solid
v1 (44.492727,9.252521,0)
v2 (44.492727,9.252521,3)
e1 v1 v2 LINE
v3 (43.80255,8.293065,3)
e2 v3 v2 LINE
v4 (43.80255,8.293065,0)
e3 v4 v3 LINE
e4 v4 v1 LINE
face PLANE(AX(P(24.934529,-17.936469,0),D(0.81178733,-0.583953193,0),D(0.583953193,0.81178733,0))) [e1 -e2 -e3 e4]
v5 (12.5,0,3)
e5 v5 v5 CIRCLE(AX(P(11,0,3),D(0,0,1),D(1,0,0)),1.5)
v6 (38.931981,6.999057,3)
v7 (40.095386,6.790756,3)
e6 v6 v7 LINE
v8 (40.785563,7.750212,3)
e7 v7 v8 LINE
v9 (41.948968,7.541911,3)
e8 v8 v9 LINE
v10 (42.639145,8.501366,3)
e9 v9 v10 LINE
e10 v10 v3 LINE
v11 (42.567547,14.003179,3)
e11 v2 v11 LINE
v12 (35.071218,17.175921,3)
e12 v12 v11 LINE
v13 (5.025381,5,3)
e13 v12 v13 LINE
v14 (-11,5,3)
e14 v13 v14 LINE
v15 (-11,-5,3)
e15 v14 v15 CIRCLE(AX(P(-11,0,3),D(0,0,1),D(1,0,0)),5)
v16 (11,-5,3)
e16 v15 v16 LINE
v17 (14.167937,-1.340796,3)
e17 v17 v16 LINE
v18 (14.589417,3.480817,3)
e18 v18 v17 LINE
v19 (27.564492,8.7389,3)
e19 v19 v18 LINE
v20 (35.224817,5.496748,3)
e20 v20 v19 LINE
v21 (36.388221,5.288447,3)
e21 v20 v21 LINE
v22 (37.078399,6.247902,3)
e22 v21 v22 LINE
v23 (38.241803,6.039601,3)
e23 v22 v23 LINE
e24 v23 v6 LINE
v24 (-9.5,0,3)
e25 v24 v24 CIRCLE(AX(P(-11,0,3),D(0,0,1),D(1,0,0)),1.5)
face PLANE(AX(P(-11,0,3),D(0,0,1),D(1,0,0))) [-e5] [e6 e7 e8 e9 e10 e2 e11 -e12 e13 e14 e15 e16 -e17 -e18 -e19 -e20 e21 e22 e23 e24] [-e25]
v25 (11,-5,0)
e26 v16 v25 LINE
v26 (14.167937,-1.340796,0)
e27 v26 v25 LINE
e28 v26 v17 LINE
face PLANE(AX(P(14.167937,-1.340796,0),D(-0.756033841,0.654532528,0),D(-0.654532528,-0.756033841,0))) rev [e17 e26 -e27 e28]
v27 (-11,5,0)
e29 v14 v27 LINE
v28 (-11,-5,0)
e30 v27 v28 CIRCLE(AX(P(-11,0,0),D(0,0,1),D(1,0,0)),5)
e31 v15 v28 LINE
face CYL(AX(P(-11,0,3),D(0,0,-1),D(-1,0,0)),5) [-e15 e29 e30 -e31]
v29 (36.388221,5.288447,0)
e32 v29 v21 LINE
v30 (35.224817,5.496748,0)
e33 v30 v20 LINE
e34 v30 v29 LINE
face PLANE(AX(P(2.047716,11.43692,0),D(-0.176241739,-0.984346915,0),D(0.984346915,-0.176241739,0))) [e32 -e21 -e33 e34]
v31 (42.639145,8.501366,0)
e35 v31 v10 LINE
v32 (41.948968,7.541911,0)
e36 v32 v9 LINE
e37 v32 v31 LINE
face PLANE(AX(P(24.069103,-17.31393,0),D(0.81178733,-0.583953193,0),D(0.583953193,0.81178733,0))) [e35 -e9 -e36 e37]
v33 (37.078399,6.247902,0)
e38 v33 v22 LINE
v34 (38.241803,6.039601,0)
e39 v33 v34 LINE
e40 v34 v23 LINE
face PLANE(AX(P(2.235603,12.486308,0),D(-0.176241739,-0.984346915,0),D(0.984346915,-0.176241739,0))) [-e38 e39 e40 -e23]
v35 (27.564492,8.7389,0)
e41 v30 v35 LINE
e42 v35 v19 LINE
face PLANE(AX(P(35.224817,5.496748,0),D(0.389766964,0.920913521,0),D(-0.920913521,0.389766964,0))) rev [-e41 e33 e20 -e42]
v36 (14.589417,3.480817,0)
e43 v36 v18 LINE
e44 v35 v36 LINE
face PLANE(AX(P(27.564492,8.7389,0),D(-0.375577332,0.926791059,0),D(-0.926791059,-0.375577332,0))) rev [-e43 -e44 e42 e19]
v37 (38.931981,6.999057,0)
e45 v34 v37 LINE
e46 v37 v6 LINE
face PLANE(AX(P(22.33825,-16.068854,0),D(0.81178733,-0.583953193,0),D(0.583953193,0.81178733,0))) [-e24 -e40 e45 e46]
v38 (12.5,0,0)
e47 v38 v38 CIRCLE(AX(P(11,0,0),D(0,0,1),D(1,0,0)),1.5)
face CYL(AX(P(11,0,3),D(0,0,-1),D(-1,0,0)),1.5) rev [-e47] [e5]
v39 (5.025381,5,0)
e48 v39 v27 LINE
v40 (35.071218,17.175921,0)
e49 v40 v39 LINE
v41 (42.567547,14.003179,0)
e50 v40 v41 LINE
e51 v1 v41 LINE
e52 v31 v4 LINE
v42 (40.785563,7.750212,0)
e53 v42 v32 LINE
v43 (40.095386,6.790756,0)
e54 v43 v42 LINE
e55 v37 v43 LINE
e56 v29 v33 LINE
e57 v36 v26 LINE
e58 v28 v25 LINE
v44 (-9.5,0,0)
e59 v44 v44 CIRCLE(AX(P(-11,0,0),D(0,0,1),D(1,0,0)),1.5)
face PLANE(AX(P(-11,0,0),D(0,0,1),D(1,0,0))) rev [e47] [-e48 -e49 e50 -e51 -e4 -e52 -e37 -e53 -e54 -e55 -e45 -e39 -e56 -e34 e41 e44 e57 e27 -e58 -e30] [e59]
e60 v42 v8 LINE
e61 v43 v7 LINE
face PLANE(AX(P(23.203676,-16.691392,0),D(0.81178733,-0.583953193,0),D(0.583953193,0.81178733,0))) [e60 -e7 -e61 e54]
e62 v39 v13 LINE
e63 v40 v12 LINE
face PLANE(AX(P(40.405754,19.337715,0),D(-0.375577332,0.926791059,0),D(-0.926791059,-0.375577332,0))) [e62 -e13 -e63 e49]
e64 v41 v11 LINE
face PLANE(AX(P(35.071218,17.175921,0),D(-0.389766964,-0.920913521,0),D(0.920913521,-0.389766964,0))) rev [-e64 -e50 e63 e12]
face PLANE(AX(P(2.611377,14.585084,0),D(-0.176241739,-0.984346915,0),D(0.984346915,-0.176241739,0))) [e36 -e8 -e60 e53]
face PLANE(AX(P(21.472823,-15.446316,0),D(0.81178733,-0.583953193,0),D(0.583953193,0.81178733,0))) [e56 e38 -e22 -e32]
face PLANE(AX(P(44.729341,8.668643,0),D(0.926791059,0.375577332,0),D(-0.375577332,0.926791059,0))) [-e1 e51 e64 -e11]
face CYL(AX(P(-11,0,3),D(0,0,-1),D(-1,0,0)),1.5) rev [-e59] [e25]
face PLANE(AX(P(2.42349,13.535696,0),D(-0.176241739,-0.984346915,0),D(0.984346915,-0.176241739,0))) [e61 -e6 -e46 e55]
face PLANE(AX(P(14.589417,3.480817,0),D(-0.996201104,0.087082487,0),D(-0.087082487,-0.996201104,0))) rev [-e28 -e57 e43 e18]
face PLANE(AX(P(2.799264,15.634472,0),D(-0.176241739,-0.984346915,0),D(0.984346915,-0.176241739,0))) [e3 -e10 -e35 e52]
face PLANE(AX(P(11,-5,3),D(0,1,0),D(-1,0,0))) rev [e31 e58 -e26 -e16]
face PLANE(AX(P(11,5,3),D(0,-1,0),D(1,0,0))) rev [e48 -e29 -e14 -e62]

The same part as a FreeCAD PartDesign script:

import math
import FreeCAD as App
import Part
import Sketcher

V = App.Vector
Q = App.Units.Quantity

doc = App.newDocument("Part")
body = doc.addObject("PartDesign::Body", "Body")

# Sketch on XY plane
sketch1 = body.newObject("Sketcher::SketchObject", "Sketch")
sketch1.AttachmentSupport = (doc.getObject("XY_Plane"), [""])
sketch1.MapMode = "FlatFace"
sketch1.addGeometry([
    Part.LineSegment(V(11, 5, 0), V(-11, 5, 0)),  # 0
    Part.ArcOfCircle(Part.Circle(V(-11, 0, 0), V(0, 0, 1), 5), math.radians(90), math.radians(270)),  # 1
    Part.LineSegment(V(-11, -5, 0), V(11, -5, 0)),  # 2
    Part.ArcOfCircle(Part.Circle(V(11, 0, 0), V(0, 0, 1), 5), math.radians(-90), math.radians(90)),  # 3
    Part.Circle(V(-11, 0, 0), V(0, 0, 1), 1.5),  # 4
    Part.Circle(V(11, 0, 0), V(0, 0, 1), 1.5),  # 5
], False)
sketch1.addConstraint([
    Sketcher.Constraint("Tangent", 0, 2, 1, 1),
    Sketcher.Constraint("Tangent", 1, 2, 2, 1),
    Sketcher.Constraint("Tangent", 2, 2, 3, 1),
    Sketcher.Constraint("Tangent", 3, 2, 0, 1),
    Sketcher.Constraint("Horizontal", 0),
    Sketcher.Constraint("Horizontal", 2),
    Sketcher.Constraint("Coincident", 4, 3, 1, 3),
    Sketcher.Constraint("Coincident", 5, 3, 3, 3),
    Sketcher.Constraint("Equal", 4, 5),
    Sketcher.Constraint("Symmetric", 1, 3, 3, 3, -1, 1),
    Sketcher.Constraint("Diameter", 4, Q("3 mm")),
    Sketcher.Constraint("Radius", 1, Q("5 mm")),
    Sketcher.Constraint("DistanceX", 0, 2, 0, 1, Q("22 mm")),
])
pad1 = body.newObject("PartDesign::Pad", "Pad")
pad1.Profile = sketch1
pad1.Length = 3

# Sketch on XY plane
sketch2 = body.newObject("Sketcher::SketchObject", "Sketch001")
sketch2.AttachmentSupport = (doc.getObject("XY_Plane"), [""])
sketch2.MapMode = "FlatFace"
sketch2.AttachmentOffset = App.Placement(V(0, 0, 3), App.Rotation())
sketch2.addGeometry([
    Part.LineSegment(V(35.5, 4.9, 0), V(44.7, 8.7, 0)),  # 0
    Part.LineSegment(V(44.7, 8.7, 0), V(40.4, 19.3, 0)),  # 1
    Part.LineSegment(V(40.4, 19.3, 0), V(5, 5, 0)),  # 2
    Part.LineSegment(V(5, 5, 0), V(11, 5, 0)),  # 3
    Part.ArcOfCircle(Part.Circle(V(11, 0, 0), V(0, 0, 1), 5), math.radians(44), math.radians(90)),  # 4
    Part.LineSegment(V(14.6, 3.5, 0), V(27.6, 8.7, 0)),  # 5
    Part.LineSegment(V(27.6, 8.7, 0), V(35.2, 5.5, 0)),  # 6
    Part.LineSegment(V(35.2, 5.5, 0), V(35.5, 4.9, 0)),  # 7
], False)
sketch2.addConstraint([
    Sketcher.Constraint("Coincident", 0, 2, 1, 1),
    Sketcher.Constraint("Coincident", 1, 2, 2, 1),
    Sketcher.Constraint("Coincident", 2, 2, 3, 1),
    Sketcher.Constraint("Tangent", 3, 2, 4, 2),
    Sketcher.Constraint("Coincident", 4, 1, 5, 1),
    Sketcher.Constraint("Coincident", 5, 2, 6, 1),
    Sketcher.Constraint("Coincident", 6, 2, 7, 1),
    Sketcher.Constraint("Coincident", 7, 2, 0, 1),
    Sketcher.Constraint("Horizontal", 3),
    Sketcher.Constraint("PointOnObject", 4, 3, -1),
    Sketcher.Constraint("Perpendicular", 0, 1),
    Sketcher.Constraint("Perpendicular", 1, 2),
    Sketcher.Constraint("Parallel", 2, 5),
    Sketcher.Constraint("Perpendicular", 5, 7),
    Sketcher.Constraint("Radius", 4, Q("5 mm")),
    Sketcher.Constraint("Distance", 0, Q("10 mm")),
    Sketcher.Constraint("Distance", 5, Q("14 mm")),
    Sketcher.Constraint("DistanceX", -1, 1, 4, 3, Q("11 mm")),
    Sketcher.Constraint("Angle", 0, Q("22.06 deg")),
    Sketcher.Constraint("Angle", 6, Q("-22.94 deg")),
    Sketcher.Constraint("Distance", 7, Q("0.63 mm")),
    Sketcher.Constraint("DistanceX", 3, 1, 3, 2, Q("5.974619 mm")),
    Sketcher.Constraint("DistanceY", -1, 1, 5, 2, Q("8.7389 mm")),
    Sketcher.Constraint("DistanceX", 4, 1, 6, 2, Q("20.6354 mm")),
])
pad2 = body.newObject("PartDesign::Pad", "Pad001")
pad2.Profile = sketch2
pad2.Length = 3
pad2.Reversed = True

# Sketch on XY plane
sketch3 = body.newObject("Sketcher::SketchObject", "Sketch002")
sketch3.AttachmentSupport = (doc.getObject("XY_Plane"), [""])
sketch3.MapMode = "FlatFace"
sketch3.AttachmentOffset = App.Placement(V(0, 0, 3), App.Rotation())
sketch3.addGeometry([
    Part.LineSegment(V(43, 14, 0), V(40, 19, 0)),
    Part.LineSegment(V(40, 19, 0), V(35, 17, 0)),
    Part.LineSegment(V(35, 17, 0), V(43, 14, 0)),
], False)
sketch3.addConstraint([
    Sketcher.Constraint("Coincident", 0, 2, 1, 1),
    Sketcher.Constraint("Coincident", 1, 2, 2, 1),
    Sketcher.Constraint("Coincident", 2, 2, 0, 1),
    Sketcher.Constraint("Perpendicular", 0, 1),
    Sketcher.Constraint("Equal", 0, 1),
    Sketcher.Constraint("Angle", 0, Q("112.06 deg")),
    Sketcher.Constraint("Distance", 2, Q("8.140102 mm")),
    Sketcher.Constraint("DistanceY", -1, 1, 1, 2, Q("17.175921 mm")),
    Sketcher.Constraint("DistanceX", -1, 1, 0, 2, Q("40.405754 mm")),
])
pocket1 = body.newObject("PartDesign::Pocket", "Pocket")
pocket1.Profile = sketch3
pocket1.Length = 3

# Sketch on XY plane
sketch4 = body.newObject("Sketcher::SketchObject", "Sketch003")
sketch4.AttachmentSupport = (doc.getObject("XY_Plane"), [""])
sketch4.MapMode = "FlatFace"
sketch4.AttachmentOffset = App.Placement(V(0, 0, 3), App.Rotation())
sketch4.addGeometry([
    Part.LineSegment(V(40.8, 7.8, 0), V(40.1, 6.8, 0)),  # 0
    Part.LineSegment(V(40.1, 6.8, 0), V(41.9, 7.5, 0)),  # 1
    Part.LineSegment(V(41.9, 7.5, 0), V(40.8, 7.8, 0)),  # 2
    Part.LineSegment(V(38.9, 7, 0), V(38.2, 6, 0)),  # 3
    Part.LineSegment(V(38.2, 6, 0), V(40.1, 6.8, 0)),  # 4
    Part.LineSegment(V(40.1, 6.8, 0), V(38.9, 7, 0)),  # 5
    Part.LineSegment(V(37.1, 6.2, 0), V(36.4, 5.3, 0)),  # 6
    Part.LineSegment(V(36.4, 5.3, 0), V(38.2, 6, 0)),  # 7
    Part.LineSegment(V(38.2, 6, 0), V(37.1, 6.2, 0)),  # 8
    Part.LineSegment(V(36.4, 5.3, 0), V(35.2, 5.5, 0)),  # 9
    Part.LineSegment(V(35.2, 5.5, 0), V(35.5, 4.9, 0)),  # 10
    Part.LineSegment(V(35.5, 4.9, 0), V(36.4, 5.3, 0)),  # 11
    Part.LineSegment(V(42.6, 8.5, 0), V(41.9, 7.5, 0)),  # 12
    Part.LineSegment(V(41.9, 7.5, 0), V(43.8, 8.3, 0)),  # 13
    Part.LineSegment(V(43.8, 8.3, 0), V(42.6, 8.5, 0)),  # 14
    Part.LineSegment(V(44.5, 9.3, 0), V(43.8, 8.3, 0)),  # 15
    Part.LineSegment(V(43.8, 8.3, 0), V(44.7, 8.7, 0)),  # 16
    Part.LineSegment(V(44.7, 8.7, 0), V(44.5, 9.3, 0)),  # 17
    Part.ArcOfCircle(Part.Circle(V(11, 0, 0), V(0, 0, 1), 5), math.radians(-90), math.radians(44)),  # 18
    Part.LineSegment(V(14.6, 3.5, 0), V(14.2, -1.3, 0)),  # 19
    Part.LineSegment(V(14.2, -1.3, 0), V(11, -5, 0)),  # 20
], False)
sketch4.addConstraint([
    Sketcher.Constraint("Coincident", 0, 2, 1, 1),
    Sketcher.Constraint("Coincident", 1, 2, 2, 1),
    Sketcher.Constraint("Coincident", 2, 2, 0, 1),
    Sketcher.Constraint("Coincident", 3, 2, 4, 1),
    Sketcher.Constraint("Coincident", 4, 2, 5, 1),
    Sketcher.Constraint("Coincident", 5, 2, 3, 1),
    Sketcher.Constraint("Coincident", 6, 2, 7, 1),
    Sketcher.Constraint("Coincident", 7, 2, 8, 1),
    Sketcher.Constraint("Coincident", 8, 2, 6, 1),
    Sketcher.Constraint("Coincident", 9, 2, 10, 1),
    Sketcher.Constraint("Coincident", 10, 2, 11, 1),
    Sketcher.Constraint("Coincident", 11, 2, 9, 1),
    Sketcher.Constraint("Coincident", 12, 2, 13, 1),
    Sketcher.Constraint("Coincident", 13, 2, 14, 1),
    Sketcher.Constraint("Coincident", 14, 2, 12, 1),
    Sketcher.Constraint("Coincident", 15, 2, 16, 1),
    Sketcher.Constraint("Coincident", 16, 2, 17, 1),
    Sketcher.Constraint("Coincident", 17, 2, 15, 1),
    Sketcher.Constraint("Coincident", 18, 2, 19, 1),
    Sketcher.Constraint("Coincident", 19, 2, 20, 1),
    Sketcher.Constraint("Coincident", 20, 2, 18, 1),
    Sketcher.Constraint("Coincident", 4, 2, 0, 2),
    Sketcher.Constraint("Coincident", 7, 2, 3, 2),
    Sketcher.Constraint("Coincident", 11, 2, 6, 2),
    Sketcher.Constraint("Coincident", 12, 2, 1, 2),
    Sketcher.Constraint("Coincident", 15, 2, 13, 2),
    Sketcher.Constraint("PointOnObject", 18, 3, -1),
    Sketcher.Constraint("Parallel", 0, 3),
    Sketcher.Constraint("Parallel", 1, 4),
    Sketcher.Constraint("Parallel", 2, 5),
    Sketcher.Constraint("Parallel", 3, 6),
    Sketcher.Constraint("Parallel", 4, 7),
    Sketcher.Constraint("Parallel", 5, 8),
    Sketcher.Constraint("Parallel", 8, 9),
    Sketcher.Constraint("Perpendicular", 7, 10),
    Sketcher.Constraint("Perpendicular", 10, 11),
    Sketcher.Constraint("Parallel", 6, 12),
    Sketcher.Constraint("Parallel", 11, 13),
    Sketcher.Constraint("Parallel", 9, 14),
    Sketcher.Constraint("Parallel", 12, 15),
    Sketcher.Constraint("Parallel", 13, 16),
    Sketcher.Constraint("Perpendicular", 16, 17),
    Sketcher.Constraint("Vertical", 18, 3, 20, 2),
    Sketcher.Constraint("Equal", 0, 2),
    Sketcher.Constraint("Equal", 2, 3),
    Sketcher.Constraint("Equal", 5, 6),
    Sketcher.Constraint("Equal", 8, 9),
    Sketcher.Constraint("Equal", 9, 12),
    Sketcher.Constraint("Equal", 14, 15),
    Sketcher.Constraint("Equal", 19, 20),
    Sketcher.Constraint("Radius", 18, Q("5 mm")),
    Sketcher.Constraint("Distance", 1, Q("2 mm")),
    Sketcher.Constraint("DistanceX", -1, 1, 18, 3, Q("11 mm")),
    Sketcher.Constraint("Angle", 1, Q("22.06 deg")),
    Sketcher.Constraint("Distance", 10, Q("0.63 mm")),
    Sketcher.Constraint("Distance", 19, Q("4.84 mm")),
    Sketcher.Constraint("DistanceY", -1, 1, 3, 2, Q("6.039601 mm")),
    Sketcher.Constraint("DistanceX", -1, 1, 8, 2, Q("37.078399 mm")),
    Sketcher.Constraint("DistanceX", 18, 2, 9, 2, Q("20.6354 mm")),
])
pocket2 = body.newObject("PartDesign::Pocket", "Pocket001")
pocket2.Profile = sketch4
pocket2.Type = "ThroughAll"
pocket2.Midplane = True

doc.recompute()
